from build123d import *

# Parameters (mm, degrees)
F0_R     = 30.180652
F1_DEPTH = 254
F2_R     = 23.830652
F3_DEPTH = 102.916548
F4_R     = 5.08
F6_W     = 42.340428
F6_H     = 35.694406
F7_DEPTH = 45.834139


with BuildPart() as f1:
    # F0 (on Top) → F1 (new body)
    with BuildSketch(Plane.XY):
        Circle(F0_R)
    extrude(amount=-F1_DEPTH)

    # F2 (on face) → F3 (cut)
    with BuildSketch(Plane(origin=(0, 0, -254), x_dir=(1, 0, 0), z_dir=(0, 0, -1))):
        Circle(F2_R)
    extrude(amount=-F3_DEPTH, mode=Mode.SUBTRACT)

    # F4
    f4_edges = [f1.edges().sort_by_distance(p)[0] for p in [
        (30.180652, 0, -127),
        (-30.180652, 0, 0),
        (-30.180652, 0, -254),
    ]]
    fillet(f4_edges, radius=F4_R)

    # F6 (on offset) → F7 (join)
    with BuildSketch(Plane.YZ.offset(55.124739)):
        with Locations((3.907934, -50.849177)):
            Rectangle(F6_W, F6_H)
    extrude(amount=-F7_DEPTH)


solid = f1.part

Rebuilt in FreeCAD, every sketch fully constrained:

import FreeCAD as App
import Part
import Sketcher

V = App.Vector
Q = App.Units.Quantity


def edges_at(feature, points):
    """Names of the edges that pass closest to the given points."""
    edges = feature.Shape.Edges
    near = lambda p: min(range(len(edges)), key=lambda i: edges[i].distToShape(Part.Vertex(*p))[0])
    return sorted({f"Edge{near(p) + 1}" for p in points})


def add_polygon(sketch, points):
    """Adds a closed chain of lines whose ends are joined by coincident constraints."""
    first, n = sketch.GeometryCount, len(points)
    for a, b in zip(points, points[1:] + points[:1]):
        sketch.addGeometry(Part.LineSegment(App.Vector(*a, 0), App.Vector(*b, 0)), False)
    for i in range(n):
        sketch.addConstraint(Sketcher.Constraint("Coincident", first + i, 2, first + (i + 1) % n, 1))

doc = App.newDocument("Part")
body = doc.addObject("PartDesign::Body", "Body")

# Sketch on XY plane
sketch1 = body.newObject("Sketcher::SketchObject", "Sketch")
sketch1.AttachmentSupport = (doc.getObject("XY_Plane"), [""])
sketch1.MapMode = "FlatFace"
sketch1.addGeometry(Part.Circle(V(0, 0, 0), V(0, 0, 1), 30), False)
sketch1.addConstraint([
    Sketcher.Constraint("Coincident", 0, 3, -1, 1),
    Sketcher.Constraint("Diameter", 0, Q("60.361304 mm")),
])
pad1 = body.newObject("PartDesign::Pad", "Pad")
pad1.Profile = sketch1
pad1.Length = Q("10 in")
pad1.Reversed = True

# Sketch on XY plane
sketch2 = body.newObject("Sketcher::SketchObject", "Sketch001")
sketch2.AttachmentSupport = (doc.getObject("XY_Plane"), [""])
sketch2.MapMode = "FlatFace"
sketch2.AttachmentOffset = App.Placement(V(0, 0, -10 * 25.4), App.Rotation())
sketch2.addGeometry(Part.Circle(V(0, 0, 0), V(0, 0, 1), 24), False)
sketch2.addConstraint([
    Sketcher.Constraint("Coincident", 0, 3, -1, 1),
    Sketcher.Constraint("Diameter", 0, Q("47.661304 mm")),
])
pocket1 = body.newObject("PartDesign::Pocket", "Pocket")
pocket1.Profile = sketch2
pocket1.Length = 102.916548
pocket1.Reversed = True
doc.recompute()

fillet = body.newObject("PartDesign::Fillet", "Fillet")
fillet.Base = (pocket1, edges_at(pocket1, [(30.181, 0, -127), (-30.181, 0, 0), (-30.181, 0, -254)]))
fillet.Radius = Q("0.2 in")

# Sketch on YZ plane
sketch3 = body.newObject("Sketcher::SketchObject", "Sketch002")
sketch3.AttachmentSupport = (doc.getObject("YZ_Plane"), [""])
sketch3.MapMode = "FlatFace"
sketch3.AttachmentOffset = App.Placement(V(0, 0, 55.124739), App.Rotation())
add_polygon(sketch3, [(-17, -33), (-17, -69), (25, -69), (25, -33)])  # lines 0-3
sketch3.addConstraint([
    Sketcher.Constraint("Vertical", 0),
    Sketcher.Constraint("Horizontal", 1),
    Sketcher.Constraint("Vertical", 2),
    Sketcher.Constraint("Horizontal", 3),
    Sketcher.Constraint("DistanceX", 1, 1, 1, 2, Q("42.340428 mm")),
    Sketcher.Constraint("DistanceY", 0, 2, 0, 1, Q("35.694406 mm")),
    Sketcher.Constraint("DistanceX", 0, 2, -1, 1, Q("17.26228 mm")),
    Sketcher.Constraint("DistanceY", 0, 2, -1, 1, Q("68.69638 mm")),
])
pad2 = body.newObject("PartDesign::Pad", "Pad001")
pad2.Profile = sketch3
pad2.Length = 45.834139
pad2.Reversed = True

doc.recompute()
